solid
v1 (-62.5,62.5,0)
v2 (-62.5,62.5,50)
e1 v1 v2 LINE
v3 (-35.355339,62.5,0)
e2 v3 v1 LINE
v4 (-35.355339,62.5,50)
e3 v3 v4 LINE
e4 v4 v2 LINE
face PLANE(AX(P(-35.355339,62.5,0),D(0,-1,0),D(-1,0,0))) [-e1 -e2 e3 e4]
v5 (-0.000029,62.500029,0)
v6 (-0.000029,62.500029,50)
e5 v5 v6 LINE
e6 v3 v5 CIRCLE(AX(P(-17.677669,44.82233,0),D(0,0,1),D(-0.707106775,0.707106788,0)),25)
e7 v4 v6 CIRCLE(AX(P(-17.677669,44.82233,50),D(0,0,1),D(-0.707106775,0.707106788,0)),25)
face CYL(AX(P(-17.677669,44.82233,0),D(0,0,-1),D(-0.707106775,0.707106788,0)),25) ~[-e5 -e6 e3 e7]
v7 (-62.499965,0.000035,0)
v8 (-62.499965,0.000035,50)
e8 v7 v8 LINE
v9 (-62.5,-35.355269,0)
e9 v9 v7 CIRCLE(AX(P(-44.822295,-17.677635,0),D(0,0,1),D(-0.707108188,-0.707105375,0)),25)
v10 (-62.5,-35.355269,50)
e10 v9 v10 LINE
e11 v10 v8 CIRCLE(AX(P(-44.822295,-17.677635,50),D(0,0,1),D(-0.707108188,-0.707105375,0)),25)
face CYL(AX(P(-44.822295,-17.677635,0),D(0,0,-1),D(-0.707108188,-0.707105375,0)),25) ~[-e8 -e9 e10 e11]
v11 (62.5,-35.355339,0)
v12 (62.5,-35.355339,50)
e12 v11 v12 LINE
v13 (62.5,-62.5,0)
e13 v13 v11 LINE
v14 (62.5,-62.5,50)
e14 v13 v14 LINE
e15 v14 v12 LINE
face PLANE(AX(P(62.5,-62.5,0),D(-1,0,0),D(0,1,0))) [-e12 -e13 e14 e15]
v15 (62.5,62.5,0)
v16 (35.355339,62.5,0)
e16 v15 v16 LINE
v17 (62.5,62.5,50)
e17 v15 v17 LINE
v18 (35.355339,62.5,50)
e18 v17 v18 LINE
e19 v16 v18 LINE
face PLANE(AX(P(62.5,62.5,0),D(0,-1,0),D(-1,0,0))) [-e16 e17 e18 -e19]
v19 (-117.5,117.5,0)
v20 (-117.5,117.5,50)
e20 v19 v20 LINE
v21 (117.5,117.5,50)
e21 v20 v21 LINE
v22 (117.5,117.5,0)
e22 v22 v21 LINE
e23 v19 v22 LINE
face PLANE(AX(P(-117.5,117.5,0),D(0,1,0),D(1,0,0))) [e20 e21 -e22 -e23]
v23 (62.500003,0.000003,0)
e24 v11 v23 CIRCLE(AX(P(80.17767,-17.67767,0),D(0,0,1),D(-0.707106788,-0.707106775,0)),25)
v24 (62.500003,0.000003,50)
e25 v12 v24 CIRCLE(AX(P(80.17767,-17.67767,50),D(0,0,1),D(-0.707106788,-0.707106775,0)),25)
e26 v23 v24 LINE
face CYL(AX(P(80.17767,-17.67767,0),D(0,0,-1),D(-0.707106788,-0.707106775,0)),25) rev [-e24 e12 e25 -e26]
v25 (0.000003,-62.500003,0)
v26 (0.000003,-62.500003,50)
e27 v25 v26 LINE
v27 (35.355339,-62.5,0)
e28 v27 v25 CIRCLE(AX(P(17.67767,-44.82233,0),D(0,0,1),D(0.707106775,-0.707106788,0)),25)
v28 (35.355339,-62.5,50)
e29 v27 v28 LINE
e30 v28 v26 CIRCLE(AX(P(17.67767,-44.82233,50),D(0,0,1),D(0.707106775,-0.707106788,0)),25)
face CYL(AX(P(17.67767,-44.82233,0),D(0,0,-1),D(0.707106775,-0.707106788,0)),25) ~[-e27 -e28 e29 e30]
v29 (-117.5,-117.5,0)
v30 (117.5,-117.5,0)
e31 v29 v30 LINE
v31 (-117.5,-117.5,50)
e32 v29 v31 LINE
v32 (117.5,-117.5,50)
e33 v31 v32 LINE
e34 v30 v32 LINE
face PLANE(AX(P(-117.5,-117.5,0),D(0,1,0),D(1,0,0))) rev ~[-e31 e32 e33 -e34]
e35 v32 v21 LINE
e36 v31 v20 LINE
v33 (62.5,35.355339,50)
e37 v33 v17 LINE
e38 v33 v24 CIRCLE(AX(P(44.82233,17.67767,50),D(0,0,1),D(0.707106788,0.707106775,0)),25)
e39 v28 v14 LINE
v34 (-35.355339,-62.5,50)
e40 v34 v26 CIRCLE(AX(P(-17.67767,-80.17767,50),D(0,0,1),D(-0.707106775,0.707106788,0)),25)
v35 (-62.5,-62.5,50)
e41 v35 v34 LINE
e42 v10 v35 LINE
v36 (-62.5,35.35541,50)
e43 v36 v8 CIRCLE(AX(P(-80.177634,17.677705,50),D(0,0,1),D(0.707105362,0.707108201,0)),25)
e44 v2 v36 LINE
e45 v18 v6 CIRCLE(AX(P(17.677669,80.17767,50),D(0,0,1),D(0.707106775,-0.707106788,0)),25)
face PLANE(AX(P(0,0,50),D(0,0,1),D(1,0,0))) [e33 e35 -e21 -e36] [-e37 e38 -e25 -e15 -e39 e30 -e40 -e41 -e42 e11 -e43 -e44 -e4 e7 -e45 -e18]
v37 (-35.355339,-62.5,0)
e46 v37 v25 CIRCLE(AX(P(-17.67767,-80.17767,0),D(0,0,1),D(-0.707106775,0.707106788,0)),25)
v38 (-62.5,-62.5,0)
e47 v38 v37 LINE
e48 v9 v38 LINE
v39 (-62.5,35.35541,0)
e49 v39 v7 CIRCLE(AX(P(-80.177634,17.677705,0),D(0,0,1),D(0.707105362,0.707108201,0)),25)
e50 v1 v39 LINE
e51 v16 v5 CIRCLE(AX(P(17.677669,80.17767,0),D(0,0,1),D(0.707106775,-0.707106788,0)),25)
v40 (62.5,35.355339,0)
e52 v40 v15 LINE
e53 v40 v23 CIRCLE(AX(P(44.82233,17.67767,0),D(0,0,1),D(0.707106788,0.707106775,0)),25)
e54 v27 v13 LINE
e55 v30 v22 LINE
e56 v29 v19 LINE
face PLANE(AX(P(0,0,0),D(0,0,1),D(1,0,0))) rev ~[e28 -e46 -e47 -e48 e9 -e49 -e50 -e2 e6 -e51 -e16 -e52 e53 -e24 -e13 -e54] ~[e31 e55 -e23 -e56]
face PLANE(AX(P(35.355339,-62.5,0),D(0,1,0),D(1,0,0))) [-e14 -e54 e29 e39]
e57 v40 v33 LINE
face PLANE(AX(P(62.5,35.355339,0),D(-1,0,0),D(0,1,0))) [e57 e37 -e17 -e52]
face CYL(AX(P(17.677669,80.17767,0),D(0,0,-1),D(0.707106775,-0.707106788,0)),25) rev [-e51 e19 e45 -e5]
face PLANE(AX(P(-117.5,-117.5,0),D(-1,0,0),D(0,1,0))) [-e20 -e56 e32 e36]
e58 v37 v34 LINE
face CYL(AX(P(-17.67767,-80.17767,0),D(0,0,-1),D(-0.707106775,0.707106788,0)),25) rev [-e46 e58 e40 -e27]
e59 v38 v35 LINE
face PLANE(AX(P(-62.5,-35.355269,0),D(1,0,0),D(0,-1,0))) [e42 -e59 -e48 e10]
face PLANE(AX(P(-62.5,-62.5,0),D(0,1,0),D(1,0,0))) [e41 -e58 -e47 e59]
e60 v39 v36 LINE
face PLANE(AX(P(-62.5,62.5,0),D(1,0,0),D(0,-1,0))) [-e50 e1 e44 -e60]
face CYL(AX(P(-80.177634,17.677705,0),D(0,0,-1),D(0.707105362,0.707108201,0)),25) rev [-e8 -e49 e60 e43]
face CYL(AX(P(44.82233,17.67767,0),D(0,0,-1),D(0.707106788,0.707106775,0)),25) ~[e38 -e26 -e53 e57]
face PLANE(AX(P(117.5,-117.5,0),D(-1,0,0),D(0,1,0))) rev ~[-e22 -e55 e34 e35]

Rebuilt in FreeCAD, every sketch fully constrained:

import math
import FreeCAD as App
import Part
import Sketcher
from FreeCAD import Vector


def add_polygon(sketch, points):
    """Adds a closed chain of lines whose ends are joined by coincident constraints."""
    first, n = sketch.GeometryCount, len(points)
    for a, b in zip(points, points[1:] + points[:1]):
        sketch.addGeometry(Part.LineSegment(App.Vector(*a, 0), App.Vector(*b, 0)), False)
    for i in range(n):
        sketch.addConstraint(Sketcher.Constraint("Coincident", first + i, 2, first + (i + 1) % n, 1))

doc = App.newDocument("Part")
body = doc.addObject("PartDesign::Body", "Body")

sketch1 = doc.addObject("Sketcher::SketchObject", "Sketch")
body.addObject(sketch1)
sketch1.AttachmentSupport = (doc.XY_Plane, [""])
sketch1.MapMode = "FlatFace"
add_polygon(sketch1, [(-118, 118), (-118, -118), (118, -118), (118, 118)])
sketch1.addGeometry(Part.LineSegment(Vector(62, -35, 0), Vector(62, -62, 0)), False)
sketch1.addGeometry(Part.LineSegment(Vector(62, -62, 0), Vector(35, -62, 0)), False)
sketch1.addGeometry(Part.ArcOfCircle(Part.Circle(Vector(18, -45, 0), Vector(0, 0, 1), 25), math.radians(-45), math.radians(225)), False)
sketch1.addGeometry(Part.ArcOfCircle(Part.Circle(Vector(-18, -80, 0), Vector(0, 0, 1), 25), math.radians(135), math.radians(405)), False)
sketch1.addGeometry(Part.LineSegment(Vector(-35, -62, 0), Vector(-62, -62, 0)), False)
sketch1.addGeometry(Part.LineSegment(Vector(-62, -62, 0), Vector(-62, -35, 0)), False)
sketch1.addGeometry(Part.ArcOfCircle(Part.Circle(Vector(-45, -18, 0), Vector(0, 0, 1), 25), math.radians(-135), math.radians(135)), False)
sketch1.addGeometry(Part.ArcOfCircle(Part.Circle(Vector(-80, 18, 0), Vector(0, 0, 1), 25), math.radians(45), math.radians(315)), False)
sketch1.addGeometry(Part.LineSegment(Vector(-62, 35, 0), Vector(-62, 62, 0)), False)
sketch1.addGeometry(Part.LineSegment(Vector(-62, 62, 0), Vector(-35, 62, 0)), False)
sketch1.addGeometry(Part.ArcOfCircle(Part.Circle(Vector(-18, 45, 0), Vector(0, 0, 1), 25), math.radians(135), math.radians(405)), False)
sketch1.addGeometry(Part.ArcOfCircle(Part.Circle(Vector(18, 80, 0), Vector(0, 0, 1), 25), math.radians(-45), math.radians(225)), False)
sketch1.addGeometry(Part.LineSegment(Vector(35, 62, 0), Vector(62, 62, 0)), False)
sketch1.addGeometry(Part.LineSegment(Vector(62, 62, 0), Vector(62, 35, 0)), False)
sketch1.addGeometry(Part.ArcOfCircle(Part.Circle(Vector(45, 18, 0), Vector(0, 0, 1), 25), math.radians(45), math.radians(315)), False)
sketch1.addGeometry(Part.ArcOfCircle(Part.Circle(Vector(80, -18, 0), Vector(0, 0, 1), 25), math.radians(-135), math.radians(135)), False)
sketch1.addConstraint(Sketcher.Constraint("Coincident", 4, 2, 5, 1))
sketch1.addConstraint(Sketcher.Constraint("Coincident", 5, 2, 6, 1))
sketch1.addConstraint(Sketcher.Constraint("Tangent", 6, 2, 7, 2))
sketch1.addConstraint(Sketcher.Constraint("Coincident", 7, 1, 8, 1))
sketch1.addConstraint(Sketcher.Constraint("Coincident", 8, 2, 9, 1))
sketch1.addConstraint(Sketcher.Constraint("Coincident", 9, 2, 10, 1))
sketch1.addConstraint(Sketcher.Constraint("Tangent", 10, 2, 11, 2))
sketch1.addConstraint(Sketcher.Constraint("Coincident", 11, 1, 12, 1))
sketch1.addConstraint(Sketcher.Constraint("Coincident", 12, 2, 13, 1))
sketch1.addConstraint(Sketcher.Constraint("Coincident", 13, 2, 14, 1))
sketch1.addConstraint(Sketcher.Constraint("Coincident", 14, 2, 15, 2))
sketch1.addConstraint(Sketcher.Constraint("Coincident", 15, 1, 16, 1))
sketch1.addConstraint(Sketcher.Constraint("Coincident", 16, 2, 17, 1))
sketch1.addConstraint(Sketcher.Constraint("Coincident", 17, 2, 18, 1))
sketch1.addConstraint(Sketcher.Constraint("Tangent", 18, 2, 19, 2))
sketch1.addConstraint(Sketcher.Constraint("Coincident", 19, 1, 4, 1))
sketch1.addConstraint(Sketcher.Constraint("Vertical", 0))
sketch1.addConstraint(Sketcher.Constraint("Horizontal", 1))
sketch1.addConstraint(Sketcher.Constraint("Vertical", 2))
sketch1.addConstraint(Sketcher.Constraint("Horizontal", 3))
sketch1.addConstraint(Sketcher.Constraint("Vertical", 4))
sketch1.addConstraint(Sketcher.Constraint("Horizontal", 5))
sketch1.addConstraint(Sketcher.Constraint("Horizontal", 8))
sketch1.addConstraint(Sketcher.Constraint("Vertical", 9))
sketch1.addConstraint(Sketcher.Constraint("Vertical", 12))
sketch1.addConstraint(Sketcher.Constraint("Horizontal", 13))
sketch1.addConstraint(Sketcher.Constraint("Horizontal", 16))
sketch1.addConstraint(Sketcher.Constraint("Vertical", 17))
sketch1.addConstraint(Sketcher.Constraint("Equal", 6, 7))
sketch1.addConstraint(Sketcher.Constraint("Equal", 7, 10))
sketch1.addConstraint(Sketcher.Constraint("Equal", 10, 11))
sketch1.addConstraint(Sketcher.Constraint("Equal", 11, 14))
sketch1.addConstraint(Sketcher.Constraint("Equal", 14, 15))
sketch1.addConstraint(Sketcher.Constraint("Equal", 15, 18))
sketch1.addConstraint(Sketcher.Constraint("Equal", 18, 19))
sketch1.addConstraint(Sketcher.Constraint("Symmetric", 6, 3, 14, 3, -1, 1))
sketch1.addConstraint(Sketcher.Constraint("Symmetric", 0, 2, 2, 2, -1, 1))
sketch1.addConstraint(Sketcher.Constraint("Symmetric", 4, 2, 12, 2, -1, 1))
sketch1.addConstraint(Sketcher.Constraint("Symmetric", 7, 1, 15, 1, -1, 1))
sketch1.addConstraint(Sketcher.Constraint("Symmetric", 5, 2, 7, 1, -2))
sketch1.addConstraint(Sketcher.Constraint("Symmetric", 17, 2, 19, 1, -1))
sketch1.addConstraint(Sketcher.Constraint("Vertical", 7, 3, 14, 3))
sketch1.addConstraint(Sketcher.Constraint("Vertical", 9, 2, 11, 1))
sketch1.addConstraint(Sketcher.Constraint("Equal", 3, 0))
sketch1.addConstraint(Sketcher.Constraint("Equal", 16, 4))
sketch1.addConstraint(Sketcher.Constraint("Radius", 6, 25.0))
sketch1.addConstraint(Sketcher.Constraint("DistanceX", 1, 1, 1, 2, 235.0))
sketch1.addConstraint(Sketcher.Constraint("DistanceY", 7, 3, 14, 3, 125.0))
sketch1.addConstraint(Sketcher.Constraint("DistanceX", 4, 2, 1, 2, 55.0))
sketch1.addConstraint(Sketcher.Constraint("DistanceY", 6, 3, 18, 3, 62.5))
sketch1.addConstraint(Sketcher.Constraint("DistanceX", 14, 3, 18, 3, 62.5))
sketch1.addConstraint(Sketcher.Constraint("DistanceY", 9, 1, 9, 2, 27.144731))
sketch1.addConstraint(Sketcher.Constraint("DistanceY", 12, 1, 12, 2, 27.14459))
sketch1.addConstraint(Sketcher.Constraint("DistanceX", 10, 3, 6, 2, 44.822298))
sketch1.addConstraint(Sketcher.Constraint("DistanceX", 14, 2, 15, 3, 17.677698))
pad1 = doc.addObject("PartDesign::Pad", "Pad")
body.addObject(pad1)
pad1.Profile = sketch1
pad1.Length = 50

doc.recompute()
